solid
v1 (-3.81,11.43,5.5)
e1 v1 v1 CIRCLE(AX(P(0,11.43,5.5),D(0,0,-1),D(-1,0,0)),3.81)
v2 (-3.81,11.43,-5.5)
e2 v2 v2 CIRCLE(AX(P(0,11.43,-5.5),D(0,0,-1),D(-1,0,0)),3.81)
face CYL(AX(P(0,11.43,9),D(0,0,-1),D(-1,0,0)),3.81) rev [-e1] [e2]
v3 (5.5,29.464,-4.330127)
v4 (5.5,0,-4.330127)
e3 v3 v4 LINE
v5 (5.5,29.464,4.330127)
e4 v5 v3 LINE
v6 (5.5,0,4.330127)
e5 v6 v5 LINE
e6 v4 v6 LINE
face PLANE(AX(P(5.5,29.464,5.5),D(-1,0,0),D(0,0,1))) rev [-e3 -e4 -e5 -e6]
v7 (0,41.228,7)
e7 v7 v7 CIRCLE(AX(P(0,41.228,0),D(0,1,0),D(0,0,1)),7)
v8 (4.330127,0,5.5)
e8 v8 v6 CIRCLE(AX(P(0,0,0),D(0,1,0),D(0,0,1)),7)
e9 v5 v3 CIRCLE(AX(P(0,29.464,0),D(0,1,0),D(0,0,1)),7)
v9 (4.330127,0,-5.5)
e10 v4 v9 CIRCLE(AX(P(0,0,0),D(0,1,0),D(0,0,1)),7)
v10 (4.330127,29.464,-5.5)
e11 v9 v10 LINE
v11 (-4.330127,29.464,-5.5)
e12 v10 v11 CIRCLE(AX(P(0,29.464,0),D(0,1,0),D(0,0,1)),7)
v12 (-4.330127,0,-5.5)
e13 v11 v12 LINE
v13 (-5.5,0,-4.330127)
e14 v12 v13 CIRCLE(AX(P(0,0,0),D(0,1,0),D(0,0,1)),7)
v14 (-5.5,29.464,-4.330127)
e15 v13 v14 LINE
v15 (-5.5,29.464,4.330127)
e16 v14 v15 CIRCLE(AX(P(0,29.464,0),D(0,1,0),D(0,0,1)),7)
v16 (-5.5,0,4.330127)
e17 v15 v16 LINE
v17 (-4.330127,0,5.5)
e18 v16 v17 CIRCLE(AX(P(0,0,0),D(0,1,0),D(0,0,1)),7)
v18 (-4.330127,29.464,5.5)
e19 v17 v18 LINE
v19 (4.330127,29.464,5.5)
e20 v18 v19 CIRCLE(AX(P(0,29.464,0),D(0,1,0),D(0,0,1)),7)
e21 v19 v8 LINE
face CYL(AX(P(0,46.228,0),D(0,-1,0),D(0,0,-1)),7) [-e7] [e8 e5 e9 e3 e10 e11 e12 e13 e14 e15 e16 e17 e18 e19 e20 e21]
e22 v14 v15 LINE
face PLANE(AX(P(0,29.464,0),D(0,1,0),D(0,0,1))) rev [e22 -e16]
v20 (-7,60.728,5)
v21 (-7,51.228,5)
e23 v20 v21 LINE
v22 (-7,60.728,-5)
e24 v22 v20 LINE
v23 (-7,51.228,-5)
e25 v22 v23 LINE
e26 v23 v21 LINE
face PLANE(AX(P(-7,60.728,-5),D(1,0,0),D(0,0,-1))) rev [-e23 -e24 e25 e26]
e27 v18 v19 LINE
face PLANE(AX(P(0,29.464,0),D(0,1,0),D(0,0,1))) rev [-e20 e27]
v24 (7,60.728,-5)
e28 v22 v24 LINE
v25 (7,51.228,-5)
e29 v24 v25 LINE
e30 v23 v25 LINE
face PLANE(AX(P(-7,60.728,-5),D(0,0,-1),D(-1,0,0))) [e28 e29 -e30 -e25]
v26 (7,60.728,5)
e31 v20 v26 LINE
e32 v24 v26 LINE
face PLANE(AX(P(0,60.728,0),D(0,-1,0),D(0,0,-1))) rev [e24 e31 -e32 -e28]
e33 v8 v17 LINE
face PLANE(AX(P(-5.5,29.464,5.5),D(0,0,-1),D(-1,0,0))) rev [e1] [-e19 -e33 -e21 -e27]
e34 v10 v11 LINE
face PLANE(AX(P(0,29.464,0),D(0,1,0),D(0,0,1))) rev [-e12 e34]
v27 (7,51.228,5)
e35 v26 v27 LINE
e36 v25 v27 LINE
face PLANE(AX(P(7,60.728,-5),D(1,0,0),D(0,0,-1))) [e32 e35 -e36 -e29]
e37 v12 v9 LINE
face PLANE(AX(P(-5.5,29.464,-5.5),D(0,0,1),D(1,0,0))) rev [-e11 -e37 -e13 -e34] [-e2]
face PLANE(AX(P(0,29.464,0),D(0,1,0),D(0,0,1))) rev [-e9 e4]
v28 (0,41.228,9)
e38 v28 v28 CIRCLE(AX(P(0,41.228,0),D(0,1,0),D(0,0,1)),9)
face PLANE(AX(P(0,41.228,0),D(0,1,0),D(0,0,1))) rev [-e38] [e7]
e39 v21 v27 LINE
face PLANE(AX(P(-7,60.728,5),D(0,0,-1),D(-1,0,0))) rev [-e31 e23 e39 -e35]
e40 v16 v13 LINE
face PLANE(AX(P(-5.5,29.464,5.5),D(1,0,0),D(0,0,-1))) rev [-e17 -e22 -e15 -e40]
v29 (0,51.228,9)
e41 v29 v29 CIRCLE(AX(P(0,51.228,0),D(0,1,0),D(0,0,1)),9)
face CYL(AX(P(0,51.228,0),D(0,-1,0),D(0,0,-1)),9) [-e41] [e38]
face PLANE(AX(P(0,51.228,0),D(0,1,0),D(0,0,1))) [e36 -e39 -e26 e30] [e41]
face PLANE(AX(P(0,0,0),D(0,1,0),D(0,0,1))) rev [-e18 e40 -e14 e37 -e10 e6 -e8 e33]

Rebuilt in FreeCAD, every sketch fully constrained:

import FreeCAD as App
import Part
import Sketcher

V = App.Vector


def add_polygon(sketch, points):
    """Adds a closed chain of lines whose ends are joined by coincident constraints."""
    first, n = sketch.GeometryCount, len(points)
    for a, b in zip(points, points[1:] + points[:1]):
        sketch.addGeometry(Part.LineSegment(App.Vector(*a, 0), App.Vector(*b, 0)), False)
    for i in range(n):
        sketch.addConstraint(Sketcher.Constraint("Coincident", first + i, 2, first + (i + 1) % n, 1))

doc = App.newDocument("Part")
body = doc.addObject("PartDesign::Body", "Body")

# Sketch on XZ plane
sketch1 = body.newObject("Sketcher::SketchObject", "Sketch")
sketch1.AttachmentSupport = (doc.getObject("XZ_Plane"), [""])
sketch1.MapMode = "FlatFace"
sketch1.addGeometry(Part.Circle(V(0, 0, 0), V(0, 0, 1), 7), False)
sketch1.addConstraint([
    Sketcher.Constraint("Coincident", 0, 3, -1, 1),
    Sketcher.Constraint("Diameter", 0, 14.0),
])
pad1 = body.newObject("PartDesign::Pad", "Pad")
pad1.Profile = sketch1
pad1.Length = 46.228
pad1.Reversed = True

# Sketch on XZ plane
sketch2 = body.newObject("Sketcher::SketchObject", "Sketch001")
sketch2.AttachmentSupport = (doc.getObject("XZ_Plane"), [""])
sketch2.MapMode = "FlatFace"
sketch2.AttachmentOffset = App.Placement(V(0, 0, -46.228), App.Rotation())
sketch2.addGeometry(Part.Circle(V(0, 0, 0), V(0, 0, 1), 9), False)
sketch2.addConstraint([
    Sketcher.Constraint("Coincident", 0, 3, -1, 1),
    Sketcher.Constraint("Diameter", 0, 18.0),
])
pad2 = body.newObject("PartDesign::Pad", "Pad001")
pad2.Profile = sketch2
pad2.Length = 10
pad2.Midplane = True

# Sketch on XZ plane
sketch3 = body.newObject("Sketcher::SketchObject", "Sketch002")
sketch3.AttachmentSupport = (doc.getObject("XZ_Plane"), [""])
sketch3.MapMode = "FlatFace"
sketch3.AttachmentOffset = App.Placement(V(0, 0, -51.228), App.Rotation())
add_polygon(sketch3, [(-7, -5), (-7, 5), (7, 5), (7, -5)])  # lines 0-3
sketch3.addConstraint([
    Sketcher.Constraint("Vertical", 0),
    Sketcher.Constraint("Horizontal", 1),
    Sketcher.Constraint("Vertical", 2),
    Sketcher.Constraint("Horizontal", 3),
    Sketcher.Constraint("Symmetric", 0, 2, 2, 2, -1, 1),
    Sketcher.Constraint("DistanceX", 1, 1, 1, 2, 14.0),
    Sketcher.Constraint("DistanceY", 0, 1, 0, 2, 10.0),
])
pad3 = body.newObject("PartDesign::Pad", "Pad002")
pad3.Profile = sketch3
pad3.Length = 9.5
pad3.Reversed = True

# Sketch on XZ plane
sketch4 = body.newObject("Sketcher::SketchObject", "Sketch003")
sketch4.AttachmentSupport = (doc.getObject("XZ_Plane"), [""])
sketch4.MapMode = "FlatFace"
add_polygon(sketch4, [(-17, -17), (-17, 17), (17, 17), (17, -17)])  # lines 0-3
add_polygon(sketch4, [(6, 6), (-6, 6), (-6, -6), (6, -6)])  # lines 4-7
sketch4.addConstraint([
    Sketcher.Constraint("Vertical", 0),
    Sketcher.Constraint("Horizontal", 1),
    Sketcher.Constraint("Vertical", 2),
    Sketcher.Constraint("Horizontal", 3),
    Sketcher.Constraint("Horizontal", 4),
    Sketcher.Constraint("Vertical", 5),
    Sketcher.Constraint("Horizontal", 6),
    Sketcher.Constraint("Vertical", 7),
    Sketcher.Constraint("Symmetric", 0, 2, 2, 2, -1, 1),
    Sketcher.Constraint("Symmetric", 4, 2, 6, 2, -1, 1),
    Sketcher.Constraint("Equal", 3, 0),
    Sketcher.Constraint("Equal", 6, 5),
    Sketcher.Constraint("DistanceX", 4, 2, 4, 1, 11.0),
    Sketcher.Constraint("DistanceX", 1, 1, 1, 2, 33.17),
])
pocket1 = body.newObject("PartDesign::Pocket", "Pocket")
pocket1.Profile = sketch4
pocket1.Length = 29.464

# Sketch on XY plane
sketch5 = body.newObject("Sketcher::SketchObject", "Sketch004")
sketch5.AttachmentSupport = (doc.getObject("XY_Plane"), [""])
sketch5.MapMode = "FlatFace"
sketch5.AttachmentOffset = App.Placement(V(0, 0, -5.5), App.Rotation())
sketch5.addGeometry(Part.Circle(V(0, 11.4, 0), V(0, 0, 1), 3.8), False)
sketch5.addConstraint([
    Sketcher.Constraint("PointOnObject", 0, 3, -2),
    Sketcher.Constraint("Diameter", 0, 7.62),
    Sketcher.Constraint("DistanceY", -1, 1, 0, 3, 11.43),
])
pocket2 = body.newObject("PartDesign::Pocket", "Pocket001")
pocket2.Profile = sketch5
pocket2.Type = "ThroughAll"
pocket2.Reversed = True

doc.recompute()
